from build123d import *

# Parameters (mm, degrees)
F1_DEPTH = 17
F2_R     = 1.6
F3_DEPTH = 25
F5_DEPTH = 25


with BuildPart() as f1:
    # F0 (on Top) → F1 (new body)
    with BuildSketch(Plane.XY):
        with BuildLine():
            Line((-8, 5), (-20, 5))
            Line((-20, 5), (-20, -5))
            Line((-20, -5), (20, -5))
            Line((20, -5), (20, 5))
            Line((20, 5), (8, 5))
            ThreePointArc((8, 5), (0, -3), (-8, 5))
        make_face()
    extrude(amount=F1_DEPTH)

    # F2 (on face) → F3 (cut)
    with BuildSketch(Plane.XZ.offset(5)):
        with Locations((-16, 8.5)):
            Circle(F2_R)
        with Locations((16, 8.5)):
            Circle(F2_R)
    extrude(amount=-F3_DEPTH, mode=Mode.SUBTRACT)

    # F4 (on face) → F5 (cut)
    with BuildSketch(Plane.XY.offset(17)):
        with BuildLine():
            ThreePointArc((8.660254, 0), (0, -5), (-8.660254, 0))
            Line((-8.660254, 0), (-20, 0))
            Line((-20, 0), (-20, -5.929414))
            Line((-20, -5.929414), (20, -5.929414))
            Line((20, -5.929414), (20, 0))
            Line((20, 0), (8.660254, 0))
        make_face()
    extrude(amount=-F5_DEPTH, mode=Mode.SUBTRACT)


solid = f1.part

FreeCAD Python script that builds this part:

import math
import FreeCAD as App
import Part
import Sketcher
Q = App.Units.Quantity

doc = App.newDocument("Part")
body = doc.addObject("PartDesign::Body", "Body")

# Sketch on XY plane
sketch1 = body.newObject("Sketcher::SketchObject", "Sketch")
sketch1.AttachmentSupport = (doc.getObject("XY_Plane"), [""])
sketch1.MapMode = "FlatFace"
sketch1.addGeometry([
    Part.LineSegment(App.Vector(-8, 5, 0), App.Vector(-20, 5, 0)),  # 0
    Part.LineSegment(App.Vector(-20, 5, 0), App.Vector(-20, -5, 0)),  # 1
    Part.LineSegment(App.Vector(-20, -5, 0), App.Vector(20, -5, 0)),  # 2
    Part.LineSegment(App.Vector(20, -5, 0), App.Vector(20, 5, 0)),  # 3
    Part.LineSegment(App.Vector(20, 5, 0), App.Vector(8, 5, 0)),  # 4
    Part.ArcOfCircle(Part.Circle(App.Vector(0, 5, 0), App.Vector(0, 0, 1), 8), math.radians(180), math.radians(360)),  # 5
], False)
sketch1.addConstraint([
    Sketcher.Constraint("Coincident", 0, 2, 1, 1),
    Sketcher.Constraint("Coincident", 1, 2, 2, 1),
    Sketcher.Constraint("Coincident", 2, 2, 3, 1),
    Sketcher.Constraint("Coincident", 3, 2, 4, 1),
    Sketcher.Constraint("Coincident", 4, 2, 5, 2),
    Sketcher.Constraint("Coincident", 5, 1, 0, 1),
    Sketcher.Constraint("Horizontal", 0),
    Sketcher.Constraint("Vertical", 1),
    Sketcher.Constraint("Horizontal", 2),
    Sketcher.Constraint("Vertical", 3),
    Sketcher.Constraint("Horizontal", 4),
    Sketcher.Constraint("Symmetric", 0, 2, 2, 2, -1, 1),
    Sketcher.Constraint("Symmetric", 4, 2, 5, 1, -2),
    Sketcher.Constraint("Horizontal", 5, 3, 0, 2),
    Sketcher.Constraint("Radius", 5, Q("8 mm")),
    Sketcher.Constraint("DistanceX", 0, 2, 0, 1, Q("12 mm")),
    Sketcher.Constraint("DistanceY", 1, 2, 1, 1, Q("10 mm")),
])
pad1 = body.newObject("PartDesign::Pad", "Pad")
pad1.Profile = sketch1
pad1.Length = 17

# Sketch on XZ plane
sketch2 = body.newObject("Sketcher::SketchObject", "Sketch001")
sketch2.AttachmentSupport = (doc.getObject("XZ_Plane"), [""])
sketch2.MapMode = "FlatFace"
sketch2.AttachmentOffset = App.Placement(App.Vector(0, 0, 5), App.Rotation())
sketch2.addGeometry([
    Part.Circle(App.Vector(-16, 8.5, 0), App.Vector(0, 0, 1), 1.6),
    Part.Circle(App.Vector(16, 8.5, 0), App.Vector(0, 0, 1), 1.6),
], False)
sketch2.addConstraint([
    Sketcher.Constraint("Equal", 0, 1),
    Sketcher.Constraint("Symmetric", 0, 3, 1, 3, -2),
    Sketcher.Constraint("Diameter", 0, Q("3.2 mm")),
    Sketcher.Constraint("DistanceX", 0, 3, -1, 1, Q("16 mm")),
    Sketcher.Constraint("DistanceY", -1, 1, 0, 3, Q("8.5 mm")),
])
pocket1 = body.newObject("PartDesign::Pocket", "Pocket")
pocket1.Profile = sketch2
pocket1.Length = 25

# Sketch on XY plane
sketch3 = body.newObject("Sketcher::SketchObject", "Sketch002")
sketch3.AttachmentSupport = (doc.getObject("XY_Plane"), [""])
sketch3.MapMode = "FlatFace"
sketch3.AttachmentOffset = App.Placement(App.Vector(0, 0, 17), App.Rotation())
sketch3.addGeometry([
    Part.ArcOfCircle(Part.Circle(App.Vector(0, 5, 0), App.Vector(0, 0, 1), 10), math.radians(-150), math.radians(-30)),  # 0
    Part.LineSegment(App.Vector(-9, 0, 0), App.Vector(-20, 0, 0)),  # 1
    Part.LineSegment(App.Vector(-20, 0, 0), App.Vector(-20, -6, 0)),  # 2
    Part.LineSegment(App.Vector(-20, -6, 0), App.Vector(20, -6, 0)),  # 3
    Part.LineSegment(App.Vector(20, -6, 0), App.Vector(20, 0, 0)),  # 4
    Part.LineSegment(App.Vector(20, 0, 0), App.Vector(9, 0, 0)),  # 5
], False)
sketch3.addConstraint([
    Sketcher.Constraint("Coincident", 0, 1, 1, 1),
    Sketcher.Constraint("Coincident", 1, 2, 2, 1),
    Sketcher.Constraint("Coincident", 2, 2, 3, 1),
    Sketcher.Constraint("Coincident", 3, 2, 4, 1),
    Sketcher.Constraint("Coincident", 4, 2, 5, 1),
    Sketcher.Constraint("Coincident", 5, 2, 0, 2),
    Sketcher.Constraint("Horizontal", 1),
    Sketcher.Constraint("Vertical", 2),
    Sketcher.Constraint("Horizontal", 3),
    Sketcher.Constraint("Vertical", 4),
    Sketcher.Constraint("Horizontal", 5),
    Sketcher.Constraint("Symmetric", 1, 2, 4, 2, -1, 1),
    Sketcher.Constraint("Symmetric", 0, 1, 5, 2, -2),
    Sketcher.Constraint("Radius", 0, Q("10 mm")),
    Sketcher.Constraint("DistanceX", 3, 1, 3, 2, Q("40 mm")),
    Sketcher.Constraint("DistanceY", -1, 1, 0, 3, Q("5 mm")),
    Sketcher.Constraint("DistanceY", 2, 2, 2, 1, Q("5.929414 mm")),
])
pocket2 = body.newObject("PartDesign::Pocket", "Pocket001")
pocket2.Profile = sketch3
pocket2.Length = 25

doc.recompute()
